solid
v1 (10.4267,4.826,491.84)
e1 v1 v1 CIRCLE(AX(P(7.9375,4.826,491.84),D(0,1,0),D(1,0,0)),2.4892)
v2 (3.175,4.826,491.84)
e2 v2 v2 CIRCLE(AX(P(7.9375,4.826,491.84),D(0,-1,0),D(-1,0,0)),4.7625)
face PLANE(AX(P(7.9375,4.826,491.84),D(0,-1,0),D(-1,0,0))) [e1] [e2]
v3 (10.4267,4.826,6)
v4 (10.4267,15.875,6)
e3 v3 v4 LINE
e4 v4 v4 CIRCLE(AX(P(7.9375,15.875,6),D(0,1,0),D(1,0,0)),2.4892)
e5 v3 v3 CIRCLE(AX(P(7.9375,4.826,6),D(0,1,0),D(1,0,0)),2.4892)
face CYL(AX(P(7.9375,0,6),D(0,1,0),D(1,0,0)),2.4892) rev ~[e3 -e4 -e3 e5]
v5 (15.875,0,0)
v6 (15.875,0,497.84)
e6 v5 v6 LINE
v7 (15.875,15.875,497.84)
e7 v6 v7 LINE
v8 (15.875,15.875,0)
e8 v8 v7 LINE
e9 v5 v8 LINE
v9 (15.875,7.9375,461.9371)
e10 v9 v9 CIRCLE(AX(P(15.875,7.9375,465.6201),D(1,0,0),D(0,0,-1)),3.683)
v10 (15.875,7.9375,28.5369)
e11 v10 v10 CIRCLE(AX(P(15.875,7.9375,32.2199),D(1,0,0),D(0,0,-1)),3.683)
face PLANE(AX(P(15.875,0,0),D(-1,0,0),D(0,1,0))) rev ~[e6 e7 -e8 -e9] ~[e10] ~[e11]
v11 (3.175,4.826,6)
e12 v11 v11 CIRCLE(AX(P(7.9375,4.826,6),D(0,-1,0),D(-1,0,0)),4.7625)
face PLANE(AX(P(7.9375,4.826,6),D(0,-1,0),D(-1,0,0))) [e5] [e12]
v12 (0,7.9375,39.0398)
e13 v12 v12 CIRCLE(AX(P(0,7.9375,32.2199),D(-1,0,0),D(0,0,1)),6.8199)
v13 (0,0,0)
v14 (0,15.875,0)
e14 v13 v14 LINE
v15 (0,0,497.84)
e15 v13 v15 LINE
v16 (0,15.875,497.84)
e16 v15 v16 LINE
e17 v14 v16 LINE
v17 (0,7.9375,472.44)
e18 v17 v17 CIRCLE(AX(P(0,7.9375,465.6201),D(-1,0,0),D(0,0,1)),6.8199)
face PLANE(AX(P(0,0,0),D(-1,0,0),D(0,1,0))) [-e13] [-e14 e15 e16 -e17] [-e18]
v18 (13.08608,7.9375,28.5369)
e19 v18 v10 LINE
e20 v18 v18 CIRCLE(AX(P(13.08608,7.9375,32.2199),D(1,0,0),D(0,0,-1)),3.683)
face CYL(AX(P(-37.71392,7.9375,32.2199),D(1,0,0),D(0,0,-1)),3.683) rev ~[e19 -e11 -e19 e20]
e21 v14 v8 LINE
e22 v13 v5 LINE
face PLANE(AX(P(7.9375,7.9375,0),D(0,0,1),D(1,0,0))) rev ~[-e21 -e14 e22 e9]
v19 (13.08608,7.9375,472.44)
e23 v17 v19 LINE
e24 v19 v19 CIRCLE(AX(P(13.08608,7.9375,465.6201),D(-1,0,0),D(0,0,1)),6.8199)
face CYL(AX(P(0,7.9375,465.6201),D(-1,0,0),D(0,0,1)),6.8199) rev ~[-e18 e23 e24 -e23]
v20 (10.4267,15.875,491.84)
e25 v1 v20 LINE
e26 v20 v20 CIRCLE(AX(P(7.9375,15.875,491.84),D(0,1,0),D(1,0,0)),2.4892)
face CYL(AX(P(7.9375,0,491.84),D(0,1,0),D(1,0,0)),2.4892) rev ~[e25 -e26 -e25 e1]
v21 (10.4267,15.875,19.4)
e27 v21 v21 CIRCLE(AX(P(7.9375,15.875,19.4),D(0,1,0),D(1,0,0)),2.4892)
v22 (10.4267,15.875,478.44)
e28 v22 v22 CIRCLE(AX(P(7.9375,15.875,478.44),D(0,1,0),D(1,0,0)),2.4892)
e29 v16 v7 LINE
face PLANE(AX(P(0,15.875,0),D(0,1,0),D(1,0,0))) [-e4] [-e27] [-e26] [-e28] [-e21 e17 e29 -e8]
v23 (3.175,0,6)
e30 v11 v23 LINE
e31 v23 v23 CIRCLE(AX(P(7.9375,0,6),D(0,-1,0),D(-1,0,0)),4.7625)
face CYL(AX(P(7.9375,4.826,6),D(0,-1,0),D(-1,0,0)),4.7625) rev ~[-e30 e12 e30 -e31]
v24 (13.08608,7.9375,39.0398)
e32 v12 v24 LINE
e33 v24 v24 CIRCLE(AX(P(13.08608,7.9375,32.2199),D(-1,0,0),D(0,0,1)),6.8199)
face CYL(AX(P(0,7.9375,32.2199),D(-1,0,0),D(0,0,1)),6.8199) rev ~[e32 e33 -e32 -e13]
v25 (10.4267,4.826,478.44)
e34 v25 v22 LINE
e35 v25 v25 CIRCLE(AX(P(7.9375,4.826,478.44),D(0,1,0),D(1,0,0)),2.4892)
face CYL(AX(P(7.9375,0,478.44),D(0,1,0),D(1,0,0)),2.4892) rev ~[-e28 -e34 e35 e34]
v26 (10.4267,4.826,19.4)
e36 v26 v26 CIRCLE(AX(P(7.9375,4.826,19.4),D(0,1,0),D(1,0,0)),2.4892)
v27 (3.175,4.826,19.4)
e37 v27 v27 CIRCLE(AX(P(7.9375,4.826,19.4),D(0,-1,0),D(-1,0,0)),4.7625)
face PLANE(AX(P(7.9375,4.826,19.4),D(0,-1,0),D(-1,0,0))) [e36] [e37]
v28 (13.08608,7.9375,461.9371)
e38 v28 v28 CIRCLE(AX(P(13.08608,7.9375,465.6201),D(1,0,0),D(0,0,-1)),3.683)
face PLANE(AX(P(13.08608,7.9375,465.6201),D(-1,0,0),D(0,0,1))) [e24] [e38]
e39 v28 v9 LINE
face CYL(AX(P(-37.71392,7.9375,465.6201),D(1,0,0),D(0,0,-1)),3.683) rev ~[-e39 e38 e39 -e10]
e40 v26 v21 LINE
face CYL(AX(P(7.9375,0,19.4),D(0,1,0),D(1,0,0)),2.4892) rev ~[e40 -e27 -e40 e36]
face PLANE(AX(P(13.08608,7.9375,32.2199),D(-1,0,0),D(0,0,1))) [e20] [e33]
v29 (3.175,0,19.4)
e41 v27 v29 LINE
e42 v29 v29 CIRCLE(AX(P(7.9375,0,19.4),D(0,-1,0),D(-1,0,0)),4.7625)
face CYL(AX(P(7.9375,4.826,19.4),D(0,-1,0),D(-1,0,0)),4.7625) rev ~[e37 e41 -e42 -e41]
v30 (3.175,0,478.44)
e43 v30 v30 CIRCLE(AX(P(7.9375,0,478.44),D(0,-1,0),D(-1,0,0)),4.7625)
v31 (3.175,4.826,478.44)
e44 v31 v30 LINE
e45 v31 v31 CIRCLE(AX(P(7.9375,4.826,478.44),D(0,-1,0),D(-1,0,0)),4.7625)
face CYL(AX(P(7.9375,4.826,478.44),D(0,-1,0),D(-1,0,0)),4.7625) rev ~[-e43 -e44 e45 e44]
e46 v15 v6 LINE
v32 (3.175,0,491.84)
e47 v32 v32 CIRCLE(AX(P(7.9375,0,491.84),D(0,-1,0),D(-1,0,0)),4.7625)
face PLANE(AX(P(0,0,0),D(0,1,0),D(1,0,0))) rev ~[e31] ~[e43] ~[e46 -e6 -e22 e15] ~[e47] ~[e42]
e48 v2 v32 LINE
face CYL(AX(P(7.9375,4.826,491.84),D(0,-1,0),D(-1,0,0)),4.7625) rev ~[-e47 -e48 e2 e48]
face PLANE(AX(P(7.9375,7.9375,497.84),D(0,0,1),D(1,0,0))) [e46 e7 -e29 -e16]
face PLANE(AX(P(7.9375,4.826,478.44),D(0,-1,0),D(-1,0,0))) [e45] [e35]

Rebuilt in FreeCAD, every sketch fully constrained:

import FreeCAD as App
import Part
import Sketcher

V = App.Vector
Q = App.Units.Quantity

doc = App.newDocument("Part")
body = doc.addObject("PartDesign::Body", "Body")

# Sketch on XY plane
sketch1 = body.newObject("Sketcher::SketchObject", "Sketch")
sketch1.AttachmentSupport = (doc.getObject("XY_Plane"), [""])
sketch1.MapMode = "FlatFace"
sketch1.addGeometry([
    Part.LineSegment(V(0, 16, 0), V(0, 0, 0)),
    Part.LineSegment(V(0, 0, 0), V(16, 0, 0)),
    Part.LineSegment(V(16, 0, 0), V(16, 16, 0)),
    Part.LineSegment(V(16, 16, 0), V(0, 16, 0)),
], False)
sketch1.addConstraint([
    Sketcher.Constraint("Coincident", 0, 2, 1, 1),
    Sketcher.Constraint("Coincident", 1, 2, 2, 1),
    Sketcher.Constraint("Coincident", 2, 2, 3, 1),
    Sketcher.Constraint("Coincident", 3, 2, 0, 1),
    Sketcher.Constraint("Vertical", 0),
    Sketcher.Constraint("Horizontal", 1),
    Sketcher.Constraint("Vertical", 2),
    Sketcher.Constraint("Horizontal", 3),
    Sketcher.Constraint("Coincident", 0, 2, -1, 1),
    Sketcher.Constraint("Equal", 3, 0),
    Sketcher.Constraint("DistanceX", 1, 1, 1, 2, Q("0.625 in")),
])
pad1 = body.newObject("PartDesign::Pad", "Pad")
pad1.Profile = sketch1
pad1.Length = Q("19.6 in")

# Sketch on YZ plane
sketch2 = body.newObject("Sketcher::SketchObject", "Sketch001")
sketch2.AttachmentSupport = (doc.getObject("YZ_Plane"), [""])
sketch2.MapMode = "FlatFace"
sketch2.addGeometry([
    Part.Circle(V(8, 466, 0), V(0, 0, 1), 7),
    Part.Circle(V(8, 32, 0), V(0, 0, 1), 7),
], False)
sketch2.addConstraint([
    Sketcher.Constraint("Equal", 0, 1),
    Sketcher.Constraint("Vertical", 0, 3, 1, 3),
    Sketcher.Constraint("Diameter", 0, Q("0.537 in")),
    Sketcher.Constraint("DistanceX", -1, 1, 0, 3, Q("0.3125 in")),
    Sketcher.Constraint("DistanceY", 1, 3, 0, 3, Q("17.063 in")),
    Sketcher.Constraint("DistanceY", -1, 1, 0, 3, Q("18.3315 in")),
])
pocket1 = body.newObject("PartDesign::Pocket", "Pocket")
pocket1.Profile = sketch2
pocket1.Length = Q("0.5152 in")
pocket1.Reversed = True

# Sketch on YZ plane
sketch3 = body.newObject("Sketcher::SketchObject", "Sketch002")
sketch3.AttachmentSupport = (doc.getObject("YZ_Plane"), [""])
sketch3.MapMode = "FlatFace"
sketch3.AttachmentOffset = App.Placement(V(0, 0, 0.5152 * 25.4), App.Rotation())
sketch3.addGeometry([
    Part.Circle(V(7.9, 32.2, 0), V(0, 0, 1), 3.7),
    Part.Circle(V(7.9, 465.6, 0), V(0, 0, 1), 3.7),
], False)
sketch3.addConstraint([
    Sketcher.Constraint("Equal", 0, 1),
    Sketcher.Constraint("Vertical", 0, 3, 1, 3),
    Sketcher.Constraint("Diameter", 0, Q("0.29 in")),
    Sketcher.Constraint("DistanceX", -1, 1, 0, 3, Q("0.3125 in")),
    Sketcher.Constraint("DistanceY", 0, 3, 1, 3, Q("17.063 in")),
    Sketcher.Constraint("DistanceY", -1, 1, 0, 3, Q("1.2685 in")),
])
doc.recompute()
hole = body.newObject("PartDesign::Hole", "Hole")
hole.Profile = sketch3
hole.ThreadType = "None"
hole.Diameter = Q("0.29 in")
hole.DepthType = "Dimension"
hole.Depth = Q("2 in")
hole.DrillPoint = "Angled"
hole.DrillPointAngle = 118
hole.Reversed = True

# Sketch on XZ plane
sketch4 = body.newObject("Sketcher::SketchObject", "Sketch003")
sketch4.AttachmentSupport = (doc.getObject("XZ_Plane"), [""])
sketch4.MapMode = "FlatFace"
sketch4.addGeometry([
    Part.Circle(V(-458.8, 491.8, 0), V(0, 0, 1), 2.5),
    Part.Circle(V(-458.8, 478.4, 0), V(0, 0, 1), 2.5),
    Part.Circle(V(7.9, 478.4, 0), V(0, 0, 1), 2.5),
    Part.Circle(V(7.9, 491.8, 0), V(0, 0, 1), 2.5),
], False)
sketch4.addConstraint([
    Sketcher.Constraint("Equal", 0, 1),
    Sketcher.Constraint("Equal", 1, 2),
    Sketcher.Constraint("Equal", 2, 3),
    Sketcher.Constraint("Horizontal", 1, 3, 2, 3),
    Sketcher.Constraint("Horizontal", 0, 3, 3, 3),
    Sketcher.Constraint("Vertical", 0, 3, 1, 3),
    Sketcher.Constraint("Vertical", 2, 3, 3, 3),
    Sketcher.Constraint("Diameter", 0, Q("0.196 in")),
    Sketcher.Constraint("DistanceX", 0, 3, -1, 1, Q("18.0625 in")),
    Sketcher.Constraint("DistanceX", -1, 1, 2, 3, Q("0.3125 in")),
    Sketcher.Constraint("DistanceY", -1, 1, 0, 3, Q("491.84 mm")),
    Sketcher.Constraint("DistanceY", -1, 1, 1, 3, Q("478.44 mm")),
])
doc.recompute()
hole2 = body.newObject("PartDesign::Hole", "Hole001")
hole2.Profile = sketch4
hole2.ThreadType = "None"
hole2.Diameter = Q("0.196 in")
hole2.DepthType = "Dimension"
hole2.Depth = Q("1 in")
hole2.DrillPoint = "Angled"
hole2.DrillPointAngle = 118
hole2.HoleCutType = "Counterbore"
hole2.HoleCutDiameter = Q("0.375 in")
hole2.HoleCutDepth = Q("0.19 in")

# Sketch on XZ plane
sketch5 = body.newObject("Sketcher::SketchObject", "Sketch004")
sketch5.AttachmentSupport = (doc.getObject("XZ_Plane"), [""])
sketch5.MapMode = "FlatFace"
sketch5.addGeometry([
    Part.Circle(V(-458.8, 6, 0), V(0, 0, 1), 2.5),
    Part.Circle(V(-458.8, 19.4, 0), V(0, 0, 1), 2.5),
    Part.Circle(V(7.9, 6, 0), V(0, 0, 1), 2.5),
    Part.Circle(V(7.9, 19.4, 0), V(0, 0, 1), 2.5),
], False)
sketch5.addConstraint([
    Sketcher.Constraint("Equal", 0, 1),
    Sketcher.Constraint("Equal", 1, 2),
    Sketcher.Constraint("Equal", 2, 3),
    Sketcher.Constraint("Horizontal", 0, 3, 2, 3),
    Sketcher.Constraint("Horizontal", 1, 3, 3, 3),
    Sketcher.Constraint("Vertical", 0, 3, 1, 3),
    Sketcher.Constraint("Vertical", 2, 3, 3, 3),
    Sketcher.Constraint("Diameter", 0, Q("0.196 in")),
    Sketcher.Constraint("DistanceX", 0, 3, -1, 1, Q("18.0625 in")),
    Sketcher.Constraint("DistanceX", -1, 1, 2, 3, Q("0.3125 in")),
    Sketcher.Constraint("DistanceY", -1, 1, 0, 3, Q("6 mm")),
    Sketcher.Constraint("DistanceY", -1, 1, 1, 3, Q("19.4 mm")),
])
doc.recompute()
hole3 = body.newObject("PartDesign::Hole", "Hole002")
hole3.Profile = sketch5
hole3.ThreadType = "None"
hole3.Diameter = Q("0.196 in")
hole3.DepthType = "Dimension"
hole3.Depth = Q("1 in")
hole3.DrillPoint = "Angled"
hole3.DrillPointAngle = 118
hole3.HoleCutType = "Counterbore"
hole3.HoleCutDiameter = Q("0.375 in")
hole3.HoleCutDepth = Q("0.19 in")

doc.recompute()
